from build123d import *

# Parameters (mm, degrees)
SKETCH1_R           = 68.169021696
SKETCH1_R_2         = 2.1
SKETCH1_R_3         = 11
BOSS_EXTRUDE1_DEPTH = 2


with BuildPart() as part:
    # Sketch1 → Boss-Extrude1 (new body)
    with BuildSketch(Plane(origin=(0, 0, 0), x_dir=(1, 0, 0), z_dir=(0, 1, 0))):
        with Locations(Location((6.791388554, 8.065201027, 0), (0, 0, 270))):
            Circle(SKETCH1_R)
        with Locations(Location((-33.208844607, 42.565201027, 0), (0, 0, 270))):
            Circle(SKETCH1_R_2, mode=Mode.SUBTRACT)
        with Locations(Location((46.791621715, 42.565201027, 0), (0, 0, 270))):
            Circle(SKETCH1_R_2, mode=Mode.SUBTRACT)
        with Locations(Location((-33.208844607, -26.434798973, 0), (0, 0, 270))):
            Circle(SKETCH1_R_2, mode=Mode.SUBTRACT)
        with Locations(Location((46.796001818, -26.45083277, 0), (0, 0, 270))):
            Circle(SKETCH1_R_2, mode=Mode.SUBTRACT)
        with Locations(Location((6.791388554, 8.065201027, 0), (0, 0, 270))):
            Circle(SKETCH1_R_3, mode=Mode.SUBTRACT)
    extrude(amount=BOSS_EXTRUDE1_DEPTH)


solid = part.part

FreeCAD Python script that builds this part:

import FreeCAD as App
import Part
import Sketcher

V = App.Vector

doc = App.newDocument("Part")
body = doc.addObject("PartDesign::Body", "Body")

# Sketch on XZ plane
sketch1 = body.newObject("Sketcher::SketchObject", "Sketch")
sketch1.AttachmentSupport = (doc.getObject("XZ_Plane"), [""])
sketch1.MapMode = "FlatFace"
sketch1.addGeometry([
    Part.Circle(V(6.8, -8.1, 0), V(0, 0, 1), 68.2),  # 0
    Part.Circle(V(-33.2, -42.6, 0), V(0, 0, 1), 2.1),  # 1
    Part.Circle(V(6.8, -8.1, 0), V(0, 0, 1), 11),  # 2
    Part.Circle(V(-33.2, 26.4, 0), V(0, 0, 1), 2.1),  # 3
    Part.Circle(V(46.8, -42.6, 0), V(0, 0, 1), 2.1),  # 4
    Part.Circle(V(46.8, 26.5, 0), V(0, 0, 1), 2.1),  # 5
], False)
sketch1.addConstraint([
    Sketcher.Constraint("Coincident", 2, 3, 0, 3),
    Sketcher.Constraint("Equal", 1, 3),
    Sketcher.Constraint("Equal", 3, 4),
    Sketcher.Constraint("Equal", 4, 5),
    Sketcher.Constraint("Horizontal", 1, 3, 4, 3),
    Sketcher.Constraint("Vertical", 1, 3, 3, 3),
    Sketcher.Constraint("Diameter", 2, 22.0),
    Sketcher.Constraint("Diameter", 1, 4.2),
    Sketcher.Constraint("DistanceY", 1, 3, 3, 3, 69.0),
    Sketcher.Constraint("DistanceY", 1, 3, 0, 3, 34.5),
    Sketcher.Constraint("Diameter", 0, 136.338043),
    Sketcher.Constraint("DistanceX", -1, 1, 5, 3, 46.796002),
    Sketcher.Constraint("DistanceY", 0, 3, -1, 1, 8.065201),
    Sketcher.Constraint("DistanceX", -1, 1, 0, 3, 6.791389),
    Sketcher.Constraint("DistanceX", -1, 1, 4, 3, 46.791622),
    Sketcher.Constraint("DistanceX", 1, 3, -1, 1, 33.208845),
    Sketcher.Constraint("DistanceY", -1, 1, 5, 3, 26.450833),
])
pad1 = body.newObject("PartDesign::Pad", "Pad")
pad1.Profile = sketch1
pad1.Length = 2
pad1.Reversed = True

doc.recompute()
